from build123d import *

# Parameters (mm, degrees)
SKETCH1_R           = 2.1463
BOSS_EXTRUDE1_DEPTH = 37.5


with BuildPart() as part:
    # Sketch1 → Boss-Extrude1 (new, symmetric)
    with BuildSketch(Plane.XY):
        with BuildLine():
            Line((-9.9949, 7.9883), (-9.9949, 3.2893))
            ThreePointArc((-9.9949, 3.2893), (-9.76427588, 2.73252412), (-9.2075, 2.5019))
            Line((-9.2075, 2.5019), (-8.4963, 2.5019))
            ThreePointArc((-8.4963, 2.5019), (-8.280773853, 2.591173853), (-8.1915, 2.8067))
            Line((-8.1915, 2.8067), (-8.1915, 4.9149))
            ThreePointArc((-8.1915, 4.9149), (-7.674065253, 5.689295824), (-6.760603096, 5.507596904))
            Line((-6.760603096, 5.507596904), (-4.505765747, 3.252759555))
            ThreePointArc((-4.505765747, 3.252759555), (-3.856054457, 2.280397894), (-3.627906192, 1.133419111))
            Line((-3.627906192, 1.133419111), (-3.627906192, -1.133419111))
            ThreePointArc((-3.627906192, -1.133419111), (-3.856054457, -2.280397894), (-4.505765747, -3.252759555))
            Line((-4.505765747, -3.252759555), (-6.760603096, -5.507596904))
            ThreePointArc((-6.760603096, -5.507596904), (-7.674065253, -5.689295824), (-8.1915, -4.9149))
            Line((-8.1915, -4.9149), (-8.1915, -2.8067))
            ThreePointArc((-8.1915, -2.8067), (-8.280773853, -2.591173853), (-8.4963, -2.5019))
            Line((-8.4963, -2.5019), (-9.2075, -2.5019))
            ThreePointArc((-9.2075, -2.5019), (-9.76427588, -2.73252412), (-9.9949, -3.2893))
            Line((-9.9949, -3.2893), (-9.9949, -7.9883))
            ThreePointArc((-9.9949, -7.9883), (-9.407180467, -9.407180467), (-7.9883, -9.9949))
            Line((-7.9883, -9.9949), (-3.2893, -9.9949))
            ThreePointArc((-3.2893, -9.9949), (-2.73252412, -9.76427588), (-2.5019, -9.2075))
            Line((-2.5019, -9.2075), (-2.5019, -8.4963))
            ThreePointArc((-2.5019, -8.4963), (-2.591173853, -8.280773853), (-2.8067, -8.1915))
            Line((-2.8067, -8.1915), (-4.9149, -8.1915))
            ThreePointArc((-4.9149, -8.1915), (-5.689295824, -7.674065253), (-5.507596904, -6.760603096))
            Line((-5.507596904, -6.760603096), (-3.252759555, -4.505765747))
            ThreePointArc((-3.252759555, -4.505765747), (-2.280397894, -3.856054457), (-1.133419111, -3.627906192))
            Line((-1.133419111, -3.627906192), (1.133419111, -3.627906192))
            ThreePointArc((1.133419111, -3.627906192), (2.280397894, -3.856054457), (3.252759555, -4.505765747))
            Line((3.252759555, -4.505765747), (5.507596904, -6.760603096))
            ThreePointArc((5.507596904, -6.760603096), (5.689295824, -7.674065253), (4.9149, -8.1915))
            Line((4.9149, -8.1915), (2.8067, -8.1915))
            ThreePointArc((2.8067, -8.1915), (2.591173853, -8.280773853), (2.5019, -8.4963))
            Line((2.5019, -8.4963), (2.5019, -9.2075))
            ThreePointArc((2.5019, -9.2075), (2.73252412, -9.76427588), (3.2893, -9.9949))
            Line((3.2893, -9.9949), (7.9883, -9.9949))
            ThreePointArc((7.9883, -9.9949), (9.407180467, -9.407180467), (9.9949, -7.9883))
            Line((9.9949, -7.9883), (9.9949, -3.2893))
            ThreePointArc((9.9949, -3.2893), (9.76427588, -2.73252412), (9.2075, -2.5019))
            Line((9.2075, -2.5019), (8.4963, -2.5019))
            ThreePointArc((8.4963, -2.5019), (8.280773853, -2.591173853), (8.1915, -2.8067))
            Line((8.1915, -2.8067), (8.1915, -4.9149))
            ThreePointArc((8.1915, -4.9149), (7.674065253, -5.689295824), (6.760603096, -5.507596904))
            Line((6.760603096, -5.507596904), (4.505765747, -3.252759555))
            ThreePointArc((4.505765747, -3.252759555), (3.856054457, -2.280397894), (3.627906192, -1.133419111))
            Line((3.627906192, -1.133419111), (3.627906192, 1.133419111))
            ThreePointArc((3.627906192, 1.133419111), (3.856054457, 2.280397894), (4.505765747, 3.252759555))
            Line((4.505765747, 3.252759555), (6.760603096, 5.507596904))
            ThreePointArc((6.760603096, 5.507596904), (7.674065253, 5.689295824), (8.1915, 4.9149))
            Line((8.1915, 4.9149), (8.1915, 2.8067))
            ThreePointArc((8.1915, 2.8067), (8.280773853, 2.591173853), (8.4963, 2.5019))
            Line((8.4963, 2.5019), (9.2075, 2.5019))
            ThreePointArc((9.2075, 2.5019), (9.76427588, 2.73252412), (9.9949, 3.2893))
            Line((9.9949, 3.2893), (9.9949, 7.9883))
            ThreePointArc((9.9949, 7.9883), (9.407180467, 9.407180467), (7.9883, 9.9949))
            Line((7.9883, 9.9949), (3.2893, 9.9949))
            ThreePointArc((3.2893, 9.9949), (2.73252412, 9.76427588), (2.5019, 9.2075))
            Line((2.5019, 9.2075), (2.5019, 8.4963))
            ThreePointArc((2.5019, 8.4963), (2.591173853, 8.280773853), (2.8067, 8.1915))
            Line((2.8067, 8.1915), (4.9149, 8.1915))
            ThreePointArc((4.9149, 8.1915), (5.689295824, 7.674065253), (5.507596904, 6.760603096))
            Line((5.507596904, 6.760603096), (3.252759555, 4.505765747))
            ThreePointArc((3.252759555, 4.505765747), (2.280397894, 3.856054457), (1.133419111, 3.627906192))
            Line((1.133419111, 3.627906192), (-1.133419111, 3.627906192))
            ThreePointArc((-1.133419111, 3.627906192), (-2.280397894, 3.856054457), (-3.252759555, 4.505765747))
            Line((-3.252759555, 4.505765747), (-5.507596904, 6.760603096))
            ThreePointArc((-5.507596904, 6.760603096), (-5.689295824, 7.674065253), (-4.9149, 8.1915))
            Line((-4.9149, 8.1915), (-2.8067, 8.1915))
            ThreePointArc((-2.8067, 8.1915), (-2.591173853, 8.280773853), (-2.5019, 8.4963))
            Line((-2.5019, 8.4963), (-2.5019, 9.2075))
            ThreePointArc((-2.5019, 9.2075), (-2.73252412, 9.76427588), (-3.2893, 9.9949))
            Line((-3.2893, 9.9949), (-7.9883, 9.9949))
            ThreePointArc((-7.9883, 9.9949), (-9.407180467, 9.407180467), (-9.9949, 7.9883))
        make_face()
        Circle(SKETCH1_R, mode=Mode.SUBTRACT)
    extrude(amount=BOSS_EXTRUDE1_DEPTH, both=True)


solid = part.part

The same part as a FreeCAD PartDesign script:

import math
import FreeCAD as App
import Part
import Sketcher
Q = App.Units.Quantity

doc = App.newDocument("Part")
body = doc.addObject("PartDesign::Body", "Body")

# Sketch on XY plane
sketch1 = body.newObject("Sketcher::SketchObject", "Sketch")
sketch1.AttachmentSupport = (doc.getObject("XY_Plane"), [""])
sketch1.MapMode = "FlatFace"
sketch1.addGeometry(Part.LineSegment(App.Vector(-9.99, 7.99, 0), App.Vector(-9.99, 3.29, 0)), False)
sketch1.addGeometry(Part.ArcOfCircle(Part.Circle(App.Vector(-9.21, 3.29, 0), App.Vector(0, 0, 1), 0.79), math.radians(180), math.radians(270)), False)
sketch1.addGeometry(Part.LineSegment(App.Vector(-9.21, 2.5, 0), App.Vector(-8.5, 2.5, 0)), False)
sketch1.addGeometry(Part.ArcOfCircle(Part.Circle(App.Vector(-8.5, 2.81, 0), App.Vector(0, 0, 1), 0.3), math.radians(-90), math.radians(0)), False)
sketch1.addGeometry(Part.LineSegment(App.Vector(-8.19, 2.81, 0), App.Vector(-8.19, 4.91, 0)), False)
sketch1.addGeometry(Part.ArcOfCircle(Part.Circle(App.Vector(-7.35, 4.91, 0), App.Vector(0, 0, 1), 0.84), math.radians(45), math.radians(180)), False)
sketch1.addGeometry(Part.LineSegment(App.Vector(-6.76, 5.51, 0), App.Vector(-4.51, 3.25, 0)), False)
sketch1.addGeometry(Part.ArcOfCircle(Part.Circle(App.Vector(-6.63, 1.13, 0), App.Vector(0, 0, 1), 3), math.radians(0), math.radians(45)), False)
sketch1.addGeometry(Part.LineSegment(App.Vector(-3.63, 1.13, 0), App.Vector(-3.63, -1.13, 0)), False)
sketch1.addGeometry(Part.ArcOfCircle(Part.Circle(App.Vector(-6.63, -1.13, 0), App.Vector(0, 0, 1), 3), math.radians(-45), math.radians(0)), False)
sketch1.addGeometry(Part.LineSegment(App.Vector(-4.51, -3.25, 0), App.Vector(-6.76, -5.51, 0)), False)
sketch1.addGeometry(Part.ArcOfCircle(Part.Circle(App.Vector(-7.35, -4.91, 0), App.Vector(0, 0, 1), 0.84), math.radians(180), math.radians(315)), False)
sketch1.addGeometry(Part.LineSegment(App.Vector(-8.19, -4.91, 0), App.Vector(-8.19, -2.81, 0)), False)
sketch1.addGeometry(Part.ArcOfCircle(Part.Circle(App.Vector(-8.5, -2.81, 0), App.Vector(0, 0, 1), 0.3), math.radians(0), math.radians(90)), False)
sketch1.addGeometry(Part.LineSegment(App.Vector(-8.5, -2.5, 0), App.Vector(-9.21, -2.5, 0)), False)
sketch1.addGeometry(Part.ArcOfCircle(Part.Circle(App.Vector(-9.21, -3.29, 0), App.Vector(0, 0, 1), 0.79), math.radians(90), math.radians(180)), False)
sketch1.addGeometry(Part.LineSegment(App.Vector(-9.99, -3.29, 0), App.Vector(-9.99, -7.99, 0)), False)
sketch1.addGeometry(Part.ArcOfCircle(Part.Circle(App.Vector(-7.99, -7.99, 0), App.Vector(0, 0, 1), 2.01), math.radians(180), math.radians(270)), False)
sketch1.addGeometry(Part.LineSegment(App.Vector(-7.99, -9.99, 0), App.Vector(-3.29, -9.99, 0)), False)
sketch1.addGeometry(Part.ArcOfCircle(Part.Circle(App.Vector(-3.29, -9.21, 0), App.Vector(0, 0, 1), 0.79), math.radians(-90), math.radians(0)), False)
sketch1.addGeometry(Part.LineSegment(App.Vector(-2.5, -9.21, 0), App.Vector(-2.5, -8.5, 0)), False)
sketch1.addGeometry(Part.ArcOfCircle(Part.Circle(App.Vector(-2.81, -8.5, 0), App.Vector(0, 0, 1), 0.3), math.radians(0), math.radians(90)), False)
sketch1.addGeometry(Part.LineSegment(App.Vector(-2.81, -8.19, 0), App.Vector(-4.91, -8.19, 0)), False)
sketch1.addGeometry(Part.ArcOfCircle(Part.Circle(App.Vector(-4.91, -7.35, 0), App.Vector(0, 0, 1), 0.84), math.radians(135), math.radians(270)), False)
sketch1.addGeometry(Part.LineSegment(App.Vector(-5.51, -6.76, 0), App.Vector(-3.25, -4.51, 0)), False)
sketch1.addGeometry(Part.ArcOfCircle(Part.Circle(App.Vector(-1.13, -6.63, 0), App.Vector(0, 0, 1), 3), math.radians(90), math.radians(135)), False)
sketch1.addGeometry(Part.LineSegment(App.Vector(-1.13, -3.63, 0), App.Vector(1.13, -3.63, 0)), False)
sketch1.addGeometry(Part.ArcOfCircle(Part.Circle(App.Vector(1.13, -6.63, 0), App.Vector(0, 0, 1), 3), math.radians(45), math.radians(90)), False)
sketch1.addGeometry(Part.LineSegment(App.Vector(3.25, -4.51, 0), App.Vector(5.51, -6.76, 0)), False)
sketch1.addGeometry(Part.ArcOfCircle(Part.Circle(App.Vector(4.91, -7.35, 0), App.Vector(0, 0, 1), 0.84), math.radians(-90), math.radians(45)), False)
sketch1.addGeometry(Part.LineSegment(App.Vector(4.91, -8.19, 0), App.Vector(2.81, -8.19, 0)), False)
sketch1.addGeometry(Part.ArcOfCircle(Part.Circle(App.Vector(2.81, -8.5, 0), App.Vector(0, 0, 1), 0.3), math.radians(90), math.radians(180)), False)
sketch1.addGeometry(Part.LineSegment(App.Vector(2.5, -8.5, 0), App.Vector(2.5, -9.21, 0)), False)
sketch1.addGeometry(Part.ArcOfCircle(Part.Circle(App.Vector(3.29, -9.21, 0), App.Vector(0, 0, 1), 0.79), math.radians(180), math.radians(270)), False)
sketch1.addGeometry(Part.LineSegment(App.Vector(3.29, -9.99, 0), App.Vector(7.99, -9.99, 0)), False)
sketch1.addGeometry(Part.ArcOfCircle(Part.Circle(App.Vector(7.99, -7.99, 0), App.Vector(0, 0, 1), 2.01), math.radians(-90), math.radians(0)), False)
sketch1.addGeometry(Part.LineSegment(App.Vector(9.99, -7.99, 0), App.Vector(9.99, -3.29, 0)), False)
sketch1.addGeometry(Part.ArcOfCircle(Part.Circle(App.Vector(9.21, -3.29, 0), App.Vector(0, 0, 1), 0.79), math.radians(0), math.radians(90)), False)
sketch1.addGeometry(Part.LineSegment(App.Vector(9.21, -2.5, 0), App.Vector(8.5, -2.5, 0)), False)
sketch1.addGeometry(Part.ArcOfCircle(Part.Circle(App.Vector(8.5, -2.81, 0), App.Vector(0, 0, 1), 0.3), math.radians(90), math.radians(180)), False)
sketch1.addGeometry(Part.LineSegment(App.Vector(8.19, -2.81, 0), App.Vector(8.19, -4.91, 0)), False)
sketch1.addGeometry(Part.ArcOfCircle(Part.Circle(App.Vector(7.35, -4.91, 0), App.Vector(0, 0, 1), 0.84), math.radians(-135), math.radians(0)), False)
sketch1.addGeometry(Part.LineSegment(App.Vector(6.76, -5.51, 0), App.Vector(4.51, -3.25, 0)), False)
sketch1.addGeometry(Part.ArcOfCircle(Part.Circle(App.Vector(6.63, -1.13, 0), App.Vector(0, 0, 1), 3), math.radians(180), math.radians(225)), False)
sketch1.addGeometry(Part.LineSegment(App.Vector(3.63, -1.13, 0), App.Vector(3.63, 1.13, 0)), False)
sketch1.addGeometry(Part.ArcOfCircle(Part.Circle(App.Vector(6.63, 1.13, 0), App.Vector(0, 0, 1), 3), math.radians(135), math.radians(180)), False)
sketch1.addGeometry(Part.LineSegment(App.Vector(4.51, 3.25, 0), App.Vector(6.76, 5.51, 0)), False)
sketch1.addGeometry(Part.ArcOfCircle(Part.Circle(App.Vector(7.35, 4.91, 0), App.Vector(0, 0, 1), 0.84), math.radians(0), math.radians(135)), False)
sketch1.addGeometry(Part.LineSegment(App.Vector(8.19, 4.91, 0), App.Vector(8.19, 2.81, 0)), False)
sketch1.addGeometry(Part.ArcOfCircle(Part.Circle(App.Vector(8.5, 2.81, 0), App.Vector(0, 0, 1), 0.3), math.radians(180), math.radians(270)), False)
sketch1.addGeometry(Part.LineSegment(App.Vector(8.5, 2.5, 0), App.Vector(9.21, 2.5, 0)), False)
sketch1.addGeometry(Part.ArcOfCircle(Part.Circle(App.Vector(9.21, 3.29, 0), App.Vector(0, 0, 1), 0.79), math.radians(-90), math.radians(0)), False)
sketch1.addGeometry(Part.LineSegment(App.Vector(9.99, 3.29, 0), App.Vector(9.99, 7.99, 0)), False)
sketch1.addGeometry(Part.ArcOfCircle(Part.Circle(App.Vector(7.99, 7.99, 0), App.Vector(0, 0, 1), 2.01), math.radians(0), math.radians(90)), False)
sketch1.addGeometry(Part.LineSegment(App.Vector(7.99, 9.99, 0), App.Vector(3.29, 9.99, 0)), False)
sketch1.addGeometry(Part.ArcOfCircle(Part.Circle(App.Vector(3.29, 9.21, 0), App.Vector(0, 0, 1), 0.79), math.radians(90), math.radians(180)), False)
sketch1.addGeometry(Part.LineSegment(App.Vector(2.5, 9.21, 0), App.Vector(2.5, 8.5, 0)), False)
sketch1.addGeometry(Part.ArcOfCircle(Part.Circle(App.Vector(2.81, 8.5, 0), App.Vector(0, 0, 1), 0.3), math.radians(180), math.radians(270)), False)
sketch1.addGeometry(Part.LineSegment(App.Vector(2.81, 8.19, 0), App.Vector(4.91, 8.19, 0)), False)
sketch1.addGeometry(Part.ArcOfCircle(Part.Circle(App.Vector(4.91, 7.35, 0), App.Vector(0, 0, 1), 0.84), math.radians(-45), math.radians(90)), False)
sketch1.addGeometry(Part.LineSegment(App.Vector(5.51, 6.76, 0), App.Vector(3.25, 4.51, 0)), False)
sketch1.addGeometry(Part.ArcOfCircle(Part.Circle(App.Vector(1.13, 6.63, 0), App.Vector(0, 0, 1), 3), math.radians(-90), math.radians(-45)), False)
sketch1.addGeometry(Part.LineSegment(App.Vector(1.13, 3.63, 0), App.Vector(-1.13, 3.63, 0)), False)
sketch1.addGeometry(Part.ArcOfCircle(Part.Circle(App.Vector(-1.13, 6.63, 0), App.Vector(0, 0, 1), 3), math.radians(-135), math.radians(-90)), False)
sketch1.addGeometry(Part.LineSegment(App.Vector(-3.25, 4.51, 0), App.Vector(-5.51, 6.76, 0)), False)
sketch1.addGeometry(Part.ArcOfCircle(Part.Circle(App.Vector(-4.91, 7.35, 0), App.Vector(0, 0, 1), 0.84), math.radians(90), math.radians(225)), False)
sketch1.addGeometry(Part.LineSegment(App.Vector(-4.91, 8.19, 0), App.Vector(-2.81, 8.19, 0)), False)
sketch1.addGeometry(Part.ArcOfCircle(Part.Circle(App.Vector(-2.81, 8.5, 0), App.Vector(0, 0, 1), 0.3), math.radians(-90), math.radians(0)), False)
sketch1.addGeometry(Part.LineSegment(App.Vector(-2.5, 8.5, 0), App.Vector(-2.5, 9.21, 0)), False)
sketch1.addGeometry(Part.ArcOfCircle(Part.Circle(App.Vector(-3.29, 9.21, 0), App.Vector(0, 0, 1), 0.79), math.radians(0), math.radians(90)), False)
sketch1.addGeometry(Part.LineSegment(App.Vector(-3.29, 9.99, 0), App.Vector(-7.99, 9.99, 0)), False)
sketch1.addGeometry(Part.ArcOfCircle(Part.Circle(App.Vector(-7.99, 7.99, 0), App.Vector(0, 0, 1), 2.01), math.radians(90), math.radians(180)), False)
sketch1.addGeometry(Part.Circle(App.Vector(0, 0, 0), App.Vector(0, 0, 1), 2.15), False)
sketch1.addConstraint(Sketcher.Constraint("Tangent", 0, 2, 1, 1))
sketch1.addConstraint(Sketcher.Constraint("Tangent", 1, 2, 2, 1))
sketch1.addConstraint(Sketcher.Constraint("Tangent", 2, 2, 3, 1))
sketch1.addConstraint(Sketcher.Constraint("Tangent", 3, 2, 4, 1))
sketch1.addConstraint(Sketcher.Constraint("Tangent", 4, 2, 5, 2))
sketch1.addConstraint(Sketcher.Constraint("Tangent", 5, 1, 6, 1))
sketch1.addConstraint(Sketcher.Constraint("Tangent", 6, 2, 7, 2))
sketch1.addConstraint(Sketcher.Constraint("Tangent", 7, 1, 8, 1))
sketch1.addConstraint(Sketcher.Constraint("Tangent", 8, 2, 9, 2))
sketch1.addConstraint(Sketcher.Constraint("Tangent", 9, 1, 10, 1))
sketch1.addConstraint(Sketcher.Constraint("Tangent", 10, 2, 11, 2))
sketch1.addConstraint(Sketcher.Constraint("Tangent", 11, 1, 12, 1))
sketch1.addConstraint(Sketcher.Constraint("Tangent", 12, 2, 13, 1))
sketch1.addConstraint(Sketcher.Constraint("Tangent", 13, 2, 14, 1))
sketch1.addConstraint(Sketcher.Constraint("Tangent", 14, 2, 15, 1))
sketch1.addConstraint(Sketcher.Constraint("Tangent", 15, 2, 16, 1))
sketch1.addConstraint(Sketcher.Constraint("Tangent", 16, 2, 17, 1))
sketch1.addConstraint(Sketcher.Constraint("Tangent", 17, 2, 18, 1))
sketch1.addConstraint(Sketcher.Constraint("Tangent", 18, 2, 19, 1))
sketch1.addConstraint(Sketcher.Constraint("Tangent", 19, 2, 20, 1))
sketch1.addConstraint(Sketcher.Constraint("Tangent", 20, 2, 21, 1))
sketch1.addConstraint(Sketcher.Constraint("Tangent", 21, 2, 22, 1))
sketch1.addConstraint(Sketcher.Constraint("Tangent", 22, 2, 23, 2))
sketch1.addConstraint(Sketcher.Constraint("Tangent", 23, 1, 24, 1))
sketch1.addConstraint(Sketcher.Constraint("Tangent", 24, 2, 25, 2))
sketch1.addConstraint(Sketcher.Constraint("Tangent", 25, 1, 26, 1))
sketch1.addConstraint(Sketcher.Constraint("Tangent", 26, 2, 27, 2))
sketch1.addConstraint(Sketcher.Constraint("Tangent", 27, 1, 28, 1))
sketch1.addConstraint(Sketcher.Constraint("Tangent", 28, 2, 29, 2))
sketch1.addConstraint(Sketcher.Constraint("Tangent", 29, 1, 30, 1))
sketch1.addConstraint(Sketcher.Constraint("Tangent", 30, 2, 31, 1))
sketch1.addConstraint(Sketcher.Constraint("Tangent", 31, 2, 32, 1))
sketch1.addConstraint(Sketcher.Constraint("Tangent", 32, 2, 33, 1))
sketch1.addConstraint(Sketcher.Constraint("Tangent", 33, 2, 34, 1))
sketch1.addConstraint(Sketcher.Constraint("Tangent", 34, 2, 35, 1))
sketch1.addConstraint(Sketcher.Constraint("Tangent", 35, 2, 36, 1))
sketch1.addConstraint(Sketcher.Constraint("Tangent", 36, 2, 37, 1))
sketch1.addConstraint(Sketcher.Constraint("Tangent", 37, 2, 38, 1))
sketch1.addConstraint(Sketcher.Constraint("Tangent", 38, 2, 39, 1))
sketch1.addConstraint(Sketcher.Constraint("Tangent", 39, 2, 40, 1))
sketch1.addConstraint(Sketcher.Constraint("Tangent", 40, 2, 41, 2))
sketch1.addConstraint(Sketcher.Constraint("Tangent", 41, 1, 42, 1))
sketch1.addConstraint(Sketcher.Constraint("Tangent", 42, 2, 43, 2))
sketch1.addConstraint(Sketcher.Constraint("Tangent", 43, 1, 44, 1))
sketch1.addConstraint(Sketcher.Constraint("Tangent", 44, 2, 45, 2))
sketch1.addConstraint(Sketcher.Constraint("Tangent", 45, 1, 46, 1))
sketch1.addConstraint(Sketcher.Constraint("Tangent", 46, 2, 47, 2))
sketch1.addConstraint(Sketcher.Constraint("Tangent", 47, 1, 48, 1))
sketch1.addConstraint(Sketcher.Constraint("Tangent", 48, 2, 49, 1))
sketch1.addConstraint(Sketcher.Constraint("Tangent", 49, 2, 50, 1))
sketch1.addConstraint(Sketcher.Constraint("Tangent", 50, 2, 51, 1))
sketch1.addConstraint(Sketcher.Constraint("Tangent", 51, 2, 52, 1))
sketch1.addConstraint(Sketcher.Constraint("Tangent", 52, 2, 53, 1))
sketch1.addConstraint(Sketcher.Constraint("Tangent", 53, 2, 54, 1))
sketch1.addConstraint(Sketcher.Constraint("Tangent", 54, 2, 55, 1))
sketch1.addConstraint(Sketcher.Constraint("Tangent", 55, 2, 56, 1))
sketch1.addConstraint(Sketcher.Constraint("Tangent", 56, 2, 57, 1))
sketch1.addConstraint(Sketcher.Constraint("Tangent", 57, 2, 58, 1))
sketch1.addConstraint(Sketcher.Constraint("Tangent", 58, 2, 59, 2))
sketch1.addConstraint(Sketcher.Constraint("Tangent", 59, 1, 60, 1))
sketch1.addConstraint(Sketcher.Constraint("Tangent", 60, 2, 61, 2))
sketch1.addConstraint(Sketcher.Constraint("Tangent", 61, 1, 62, 1))
sketch1.addConstraint(Sketcher.Constraint("Tangent", 62, 2, 63, 2))
sketch1.addConstraint(Sketcher.Constraint("Tangent", 63, 1, 64, 1))
sketch1.addConstraint(Sketcher.Constraint("Tangent", 64, 2, 65, 2))
sketch1.addConstraint(Sketcher.Constraint("Tangent", 65, 1, 66, 1))
sketch1.addConstraint(Sketcher.Constraint("Tangent", 66, 2, 67, 1))
sketch1.addConstraint(Sketcher.Constraint("Tangent", 67, 2, 68, 1))
sketch1.addConstraint(Sketcher.Constraint("Tangent", 68, 2, 69, 1))
sketch1.addConstraint(Sketcher.Constraint("Tangent", 69, 2, 70, 1))
sketch1.addConstraint(Sketcher.Constraint("Tangent", 70, 2, 71, 1))
sketch1.addConstraint(Sketcher.Constraint("Tangent", 71, 2, 0, 1))
sketch1.addConstraint(Sketcher.Constraint("Vertical", 0))
sketch1.addConstraint(Sketcher.Constraint("Horizontal", 2))
sketch1.addConstraint(Sketcher.Constraint("Vertical", 4))
sketch1.addConstraint(Sketcher.Constraint("Vertical", 8))
sketch1.addConstraint(Sketcher.Constraint("Vertical", 12))
sketch1.addConstraint(Sketcher.Constraint("Horizontal", 14))
sketch1.addConstraint(Sketcher.Constraint("Vertical", 16))
sketch1.addConstraint(Sketcher.Constraint("Horizontal", 18))
sketch1.addConstraint(Sketcher.Constraint("Vertical", 20))
sketch1.addConstraint(Sketcher.Constraint("Horizontal", 22))
sketch1.addConstraint(Sketcher.Constraint("Horizontal", 26))
sketch1.addConstraint(Sketcher.Constraint("Horizontal", 30))
sketch1.addConstraint(Sketcher.Constraint("Vertical", 32))
sketch1.addConstraint(Sketcher.Constraint("Horizontal", 34))
sketch1.addConstraint(Sketcher.Constraint("Vertical", 36))
sketch1.addConstraint(Sketcher.Constraint("Horizontal", 38))
sketch1.addConstraint(Sketcher.Constraint("Vertical", 40))
sketch1.addConstraint(Sketcher.Constraint("Vertical", 44))
sketch1.addConstraint(Sketcher.Constraint("Vertical", 48))
sketch1.addConstraint(Sketcher.Constraint("Horizontal", 50))
sketch1.addConstraint(Sketcher.Constraint("Vertical", 52))
sketch1.addConstraint(Sketcher.Constraint("Horizontal", 54))
sketch1.addConstraint(Sketcher.Constraint("Vertical", 56))
sketch1.addConstraint(Sketcher.Constraint("Horizontal", 58))
sketch1.addConstraint(Sketcher.Constraint("Horizontal", 62))
sketch1.addConstraint(Sketcher.Constraint("Horizontal", 66))
sketch1.addConstraint(Sketcher.Constraint("Vertical", 68))
sketch1.addConstraint(Sketcher.Constraint("Horizontal", 70))
sketch1.addConstraint(Sketcher.Constraint("Coincident", 72, 3, -1, 1))
sketch1.addConstraint(Sketcher.Constraint("Equal", 7, 9))
sketch1.addConstraint(Sketcher.Constraint("Equal", 5, 11))
sketch1.addConstraint(Sketcher.Constraint("Equal", 3, 13))
sketch1.addConstraint(Sketcher.Constraint("Equal", 1, 15))
sketch1.addConstraint(Sketcher.Constraint("Equal", 15, 19))
sketch1.addConstraint(Sketcher.Constraint("Equal", 13, 21))
sketch1.addConstraint(Sketcher.Constraint("Equal", 11, 23))
sketch1.addConstraint(Sketcher.Constraint("Equal", 9, 25))
sketch1.addConstraint(Sketcher.Constraint("Equal", 25, 27))
sketch1.addConstraint(Sketcher.Constraint("Equal", 23, 29))
sketch1.addConstraint(Sketcher.Constraint("Equal", 21, 31))
sketch1.addConstraint(Sketcher.Constraint("Equal", 19, 33))
sketch1.addConstraint(Sketcher.Constraint("Equal", 17, 35))
sketch1.addConstraint(Sketcher.Constraint("Equal", 33, 37))
sketch1.addConstraint(Sketcher.Constraint("Equal", 31, 39))
sketch1.addConstraint(Sketcher.Constraint("Equal", 29, 41))
sketch1.addConstraint(Sketcher.Constraint("Equal", 27, 43))
sketch1.addConstraint(Sketcher.Constraint("Equal", 43, 45))
sketch1.addConstraint(Sketcher.Constraint("Equal", 41, 47))
sketch1.addConstraint(Sketcher.Constraint("Equal", 39, 49))
sketch1.addConstraint(Sketcher.Constraint("Equal", 37, 51))
sketch1.addConstraint(Sketcher.Constraint("Equal", 35, 53))
sketch1.addConstraint(Sketcher.Constraint("Equal", 51, 55))
sketch1.addConstraint(Sketcher.Constraint("Equal", 49, 57))
sketch1.addConstraint(Sketcher.Constraint("Equal", 47, 59))
sketch1.addConstraint(Sketcher.Constraint("Equal", 45, 61))
sketch1.addConstraint(Sketcher.Constraint("Equal", 61, 63))
sketch1.addConstraint(Sketcher.Constraint("Equal", 59, 65))
sketch1.addConstraint(Sketcher.Constraint("Equal", 57, 67))
sketch1.addConstraint(Sketcher.Constraint("Equal", 55, 69))
sketch1.addConstraint(Sketcher.Constraint("Equal", 53, 71))
sketch1.addConstraint(Sketcher.Constraint("Symmetric", 1, 3, 37, 3, -1, 1))
sketch1.addConstraint(Sketcher.Constraint("Symmetric", 5, 3, 41, 3, -1, 1))
sketch1.addConstraint(Sketcher.Constraint("Symmetric", 7, 3, 43, 3, -1, 1))
sketch1.addConstraint(Sketcher.Constraint("Symmetric", 11, 3, 47, 3, -1, 1))
sketch1.addConstraint(Sketcher.Constraint("Symmetric", 15, 3, 51, 3, -1, 1))
sketch1.addConstraint(Sketcher.Constraint("Symmetric", 19, 3, 55, 3, -1, 1))
sketch1.addConstraint(Sketcher.Constraint("Symmetric", 23, 3, 59, 3, -1, 1))
sketch1.addConstraint(Sketcher.Constraint("Symmetric", 25, 3, 61, 3, -1, 1))
sketch1.addConstraint(Sketcher.Constraint("Symmetric", 29, 3, 65, 3, -1, 1))
sketch1.addConstraint(Sketcher.Constraint("Symmetric", 33, 3, 69, 3, -1, 1))
sketch1.addConstraint(Sketcher.Constraint("Symmetric", 23, 3, 29, 3, -2))
sketch1.addConstraint(Sketcher.Constraint("Symmetric", 19, 3, 33, 3, -2))
sketch1.addConstraint(Sketcher.Constraint("Symmetric", 15, 3, 37, 3, -2))
sketch1.addConstraint(Sketcher.Constraint("Symmetric", 11, 3, 41, 3, -2))
sketch1.addConstraint(Sketcher.Constraint("Perpendicular", 6, 10))
sketch1.addConstraint(Sketcher.Constraint("Parallel", 10, 24))
sketch1.addConstraint(Sketcher.Constraint("Perpendicular", 24, 28))
sketch1.addConstraint(Sketcher.Constraint("Perpendicular", 42, 46))
sketch1.addConstraint(Sketcher.Constraint("Perpendicular", 60, 64))
sketch1.addConstraint(Sketcher.Constraint("Horizontal", 9, 3, 43, 3))
sketch1.addConstraint(Sketcher.Constraint("Equal", 70, 0))
sketch1.addConstraint(Sketcher.Constraint("Equal", 66, 4))
sketch1.addConstraint(Sketcher.Constraint("Equal", 62, 8))
sketch1.addConstraint(Sketcher.Constraint("Equal", 50, 20))
sketch1.addConstraint(Sketcher.Constraint("Equal", 10, 24))
sketch1.addConstraint(Sketcher.Constraint("Diameter", 72, Q("0.169 in")))
sketch1.addConstraint(Sketcher.Constraint("Radius", 1, Q("0.031 in")))
sketch1.addConstraint(Sketcher.Constraint("Radius", 3, Q("0.012 in")))
sketch1.addConstraint(Sketcher.Constraint("Radius", 5, Q("0.033 in")))
sketch1.addConstraint(Sketcher.Constraint("Radius", 7, Q("0.118 in")))
sketch1.addConstraint(Sketcher.Constraint("Radius", 17, Q("0.079 in")))
sketch1.addConstraint(Sketcher.Constraint("DistanceX", 2, 1, 2, 2, Q("0.028 in")))
sketch1.addConstraint(Sketcher.Constraint("DistanceX", 18, 1, 18, 2, Q("0.185 in")))
sketch1.addConstraint(Sketcher.Constraint("DistanceX", 22, 2, 22, 1, Q("0.083 in")))
sketch1.addConstraint(Sketcher.Constraint("DistanceX", 1, 3, -1, 1, Q("0.3625 in")))
sketch1.addConstraint(Sketcher.Constraint("DistanceX", 26, 1, 26, 2, 2.266838))
pad1 = body.newObject("PartDesign::Pad", "Pad")
pad1.Profile = sketch1
pad1.Length = 75
pad1.Midplane = True

doc.recompute()
